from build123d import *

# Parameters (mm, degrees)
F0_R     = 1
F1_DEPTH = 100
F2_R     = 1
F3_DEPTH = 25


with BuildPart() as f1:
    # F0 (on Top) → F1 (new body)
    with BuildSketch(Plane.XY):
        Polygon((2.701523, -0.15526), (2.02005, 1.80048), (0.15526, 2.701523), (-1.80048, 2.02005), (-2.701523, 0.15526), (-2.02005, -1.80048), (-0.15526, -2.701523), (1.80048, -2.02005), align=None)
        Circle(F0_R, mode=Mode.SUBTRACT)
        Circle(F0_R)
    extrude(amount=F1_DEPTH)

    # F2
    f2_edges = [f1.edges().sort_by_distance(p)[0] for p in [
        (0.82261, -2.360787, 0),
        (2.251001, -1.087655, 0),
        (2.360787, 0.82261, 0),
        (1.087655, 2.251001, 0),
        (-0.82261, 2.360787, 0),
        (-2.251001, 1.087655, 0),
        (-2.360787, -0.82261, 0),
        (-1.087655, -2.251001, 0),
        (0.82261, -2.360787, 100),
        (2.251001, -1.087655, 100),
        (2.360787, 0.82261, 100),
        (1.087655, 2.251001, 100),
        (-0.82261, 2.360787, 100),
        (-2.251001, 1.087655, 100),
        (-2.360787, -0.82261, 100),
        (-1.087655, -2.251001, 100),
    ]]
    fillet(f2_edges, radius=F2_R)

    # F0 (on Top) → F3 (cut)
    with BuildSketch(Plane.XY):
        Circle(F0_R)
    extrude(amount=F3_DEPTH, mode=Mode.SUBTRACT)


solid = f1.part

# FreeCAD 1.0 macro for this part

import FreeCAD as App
import Part
import Sketcher
from FreeCAD import Vector
Q = App.Units.Quantity


def edges_at(feature, points):
    """Names of the edges that pass closest to the given points."""
    edges = feature.Shape.Edges
    near = lambda p: min(range(len(edges)), key=lambda i: edges[i].distToShape(Part.Vertex(*p))[0])
    return sorted({f"Edge{near(p) + 1}" for p in points})


def add_polygon(sketch, points):
    """Adds a closed chain of lines whose ends are joined by coincident constraints."""
    first, n = sketch.GeometryCount, len(points)
    for a, b in zip(points, points[1:] + points[:1]):
        sketch.addGeometry(Part.LineSegment(App.Vector(*a, 0), App.Vector(*b, 0)), False)
    for i in range(n):
        sketch.addConstraint(Sketcher.Constraint("Coincident", first + i, 2, first + (i + 1) % n, 1))

doc = App.newDocument("Part")
body = doc.addObject("PartDesign::Body", "Body")

# Sketch on XY plane
sketch1 = doc.addObject("Sketcher::SketchObject", "Sketch")
body.addObject(sketch1)
sketch1.AttachmentSupport = (doc.XY_Plane, [""])
sketch1.MapMode = "FlatFace"
add_polygon(sketch1, [(2.7, -0.2), (2, 1.8), (0.2, 2.7), (-1.8, 2), (-2.7, 0.2), (-2, -1.8), (-0.2, -2.7), (1.8, -2)])  # lines 0-7
sketch1.addConstraint(Sketcher.Constraint("Symmetric", 0, 2, 4, 2, -1, 1))
sketch1.addConstraint(Sketcher.Constraint("Symmetric", 1, 2, 5, 2, -1, 1))
sketch1.addConstraint(Sketcher.Constraint("Symmetric", 2, 2, 6, 2, -1, 1))
sketch1.addConstraint(Sketcher.Constraint("Symmetric", 3, 2, 7, 2, -1, 1))
sketch1.addConstraint(Sketcher.Constraint("Perpendicular", 0, 2))
sketch1.addConstraint(Sketcher.Constraint("Perpendicular", 1, 3))
sketch1.addConstraint(Sketcher.Constraint("Equal", 0, 1))
sketch1.addConstraint(Sketcher.Constraint("Equal", 1, 2))
sketch1.addConstraint(Sketcher.Constraint("Equal", 2, 3))
sketch1.addConstraint(Sketcher.Constraint("DistanceX", 4, 2, 0, 2, Q("4.0401 mm")))
sketch1.addConstraint(Sketcher.Constraint("Distance", 0, Q("2.071068 mm")))
sketch1.addConstraint(Sketcher.Constraint("DistanceY", -1, 1, 0, 2, Q("1.80048 mm")))
pad1 = doc.addObject("PartDesign::Pad", "Pad")
body.addObject(pad1)
pad1.Profile = sketch1
pad1.Length = 100
doc.recompute()

fillet = doc.addObject("PartDesign::Fillet", "Fillet")
body.addObject(fillet)
fillet.Base = (pad1, edges_at(pad1, [
    (0.823, -2.361, 0),
    (2.251, -1.088, 0),
    (2.361, 0.823, 0),
    (1.088, 2.251, 0),
    (-0.823, 2.361, 0),
    (-2.251, 1.088, 0),
    (-2.361, -0.823, 0),
    (-1.088, -2.251, 0),
    (0.823, -2.361, 100),
    (2.251, -1.088, 100),
    (2.361, 0.823, 100),
    (1.088, 2.251, 100),
    (-0.823, 2.361, 100),
    (-2.251, 1.088, 100),
    (-2.361, -0.823, 100),
    (-1.088, -2.251, 100),
]))
fillet.Radius = 1

# Sketch on XY plane
sketch2 = doc.addObject("Sketcher::SketchObject", "Sketch001")
body.addObject(sketch2)
sketch2.AttachmentSupport = (doc.XY_Plane, [""])
sketch2.MapMode = "FlatFace"
sketch2.addGeometry(Part.Circle(Vector(0, 0, 0), Vector(0, 0, 1), 1), False)
sketch2.addConstraint(Sketcher.Constraint("Coincident", 0, 3, -1, 1))
sketch2.addConstraint(Sketcher.Constraint("Diameter", 0, Q("2 mm")))
pocket1 = doc.addObject("PartDesign::Pocket", "Pocket")
body.addObject(pocket1)
pocket1.Profile = sketch2
pocket1.Length = 25
pocket1.Reversed = True

doc.recompute()
